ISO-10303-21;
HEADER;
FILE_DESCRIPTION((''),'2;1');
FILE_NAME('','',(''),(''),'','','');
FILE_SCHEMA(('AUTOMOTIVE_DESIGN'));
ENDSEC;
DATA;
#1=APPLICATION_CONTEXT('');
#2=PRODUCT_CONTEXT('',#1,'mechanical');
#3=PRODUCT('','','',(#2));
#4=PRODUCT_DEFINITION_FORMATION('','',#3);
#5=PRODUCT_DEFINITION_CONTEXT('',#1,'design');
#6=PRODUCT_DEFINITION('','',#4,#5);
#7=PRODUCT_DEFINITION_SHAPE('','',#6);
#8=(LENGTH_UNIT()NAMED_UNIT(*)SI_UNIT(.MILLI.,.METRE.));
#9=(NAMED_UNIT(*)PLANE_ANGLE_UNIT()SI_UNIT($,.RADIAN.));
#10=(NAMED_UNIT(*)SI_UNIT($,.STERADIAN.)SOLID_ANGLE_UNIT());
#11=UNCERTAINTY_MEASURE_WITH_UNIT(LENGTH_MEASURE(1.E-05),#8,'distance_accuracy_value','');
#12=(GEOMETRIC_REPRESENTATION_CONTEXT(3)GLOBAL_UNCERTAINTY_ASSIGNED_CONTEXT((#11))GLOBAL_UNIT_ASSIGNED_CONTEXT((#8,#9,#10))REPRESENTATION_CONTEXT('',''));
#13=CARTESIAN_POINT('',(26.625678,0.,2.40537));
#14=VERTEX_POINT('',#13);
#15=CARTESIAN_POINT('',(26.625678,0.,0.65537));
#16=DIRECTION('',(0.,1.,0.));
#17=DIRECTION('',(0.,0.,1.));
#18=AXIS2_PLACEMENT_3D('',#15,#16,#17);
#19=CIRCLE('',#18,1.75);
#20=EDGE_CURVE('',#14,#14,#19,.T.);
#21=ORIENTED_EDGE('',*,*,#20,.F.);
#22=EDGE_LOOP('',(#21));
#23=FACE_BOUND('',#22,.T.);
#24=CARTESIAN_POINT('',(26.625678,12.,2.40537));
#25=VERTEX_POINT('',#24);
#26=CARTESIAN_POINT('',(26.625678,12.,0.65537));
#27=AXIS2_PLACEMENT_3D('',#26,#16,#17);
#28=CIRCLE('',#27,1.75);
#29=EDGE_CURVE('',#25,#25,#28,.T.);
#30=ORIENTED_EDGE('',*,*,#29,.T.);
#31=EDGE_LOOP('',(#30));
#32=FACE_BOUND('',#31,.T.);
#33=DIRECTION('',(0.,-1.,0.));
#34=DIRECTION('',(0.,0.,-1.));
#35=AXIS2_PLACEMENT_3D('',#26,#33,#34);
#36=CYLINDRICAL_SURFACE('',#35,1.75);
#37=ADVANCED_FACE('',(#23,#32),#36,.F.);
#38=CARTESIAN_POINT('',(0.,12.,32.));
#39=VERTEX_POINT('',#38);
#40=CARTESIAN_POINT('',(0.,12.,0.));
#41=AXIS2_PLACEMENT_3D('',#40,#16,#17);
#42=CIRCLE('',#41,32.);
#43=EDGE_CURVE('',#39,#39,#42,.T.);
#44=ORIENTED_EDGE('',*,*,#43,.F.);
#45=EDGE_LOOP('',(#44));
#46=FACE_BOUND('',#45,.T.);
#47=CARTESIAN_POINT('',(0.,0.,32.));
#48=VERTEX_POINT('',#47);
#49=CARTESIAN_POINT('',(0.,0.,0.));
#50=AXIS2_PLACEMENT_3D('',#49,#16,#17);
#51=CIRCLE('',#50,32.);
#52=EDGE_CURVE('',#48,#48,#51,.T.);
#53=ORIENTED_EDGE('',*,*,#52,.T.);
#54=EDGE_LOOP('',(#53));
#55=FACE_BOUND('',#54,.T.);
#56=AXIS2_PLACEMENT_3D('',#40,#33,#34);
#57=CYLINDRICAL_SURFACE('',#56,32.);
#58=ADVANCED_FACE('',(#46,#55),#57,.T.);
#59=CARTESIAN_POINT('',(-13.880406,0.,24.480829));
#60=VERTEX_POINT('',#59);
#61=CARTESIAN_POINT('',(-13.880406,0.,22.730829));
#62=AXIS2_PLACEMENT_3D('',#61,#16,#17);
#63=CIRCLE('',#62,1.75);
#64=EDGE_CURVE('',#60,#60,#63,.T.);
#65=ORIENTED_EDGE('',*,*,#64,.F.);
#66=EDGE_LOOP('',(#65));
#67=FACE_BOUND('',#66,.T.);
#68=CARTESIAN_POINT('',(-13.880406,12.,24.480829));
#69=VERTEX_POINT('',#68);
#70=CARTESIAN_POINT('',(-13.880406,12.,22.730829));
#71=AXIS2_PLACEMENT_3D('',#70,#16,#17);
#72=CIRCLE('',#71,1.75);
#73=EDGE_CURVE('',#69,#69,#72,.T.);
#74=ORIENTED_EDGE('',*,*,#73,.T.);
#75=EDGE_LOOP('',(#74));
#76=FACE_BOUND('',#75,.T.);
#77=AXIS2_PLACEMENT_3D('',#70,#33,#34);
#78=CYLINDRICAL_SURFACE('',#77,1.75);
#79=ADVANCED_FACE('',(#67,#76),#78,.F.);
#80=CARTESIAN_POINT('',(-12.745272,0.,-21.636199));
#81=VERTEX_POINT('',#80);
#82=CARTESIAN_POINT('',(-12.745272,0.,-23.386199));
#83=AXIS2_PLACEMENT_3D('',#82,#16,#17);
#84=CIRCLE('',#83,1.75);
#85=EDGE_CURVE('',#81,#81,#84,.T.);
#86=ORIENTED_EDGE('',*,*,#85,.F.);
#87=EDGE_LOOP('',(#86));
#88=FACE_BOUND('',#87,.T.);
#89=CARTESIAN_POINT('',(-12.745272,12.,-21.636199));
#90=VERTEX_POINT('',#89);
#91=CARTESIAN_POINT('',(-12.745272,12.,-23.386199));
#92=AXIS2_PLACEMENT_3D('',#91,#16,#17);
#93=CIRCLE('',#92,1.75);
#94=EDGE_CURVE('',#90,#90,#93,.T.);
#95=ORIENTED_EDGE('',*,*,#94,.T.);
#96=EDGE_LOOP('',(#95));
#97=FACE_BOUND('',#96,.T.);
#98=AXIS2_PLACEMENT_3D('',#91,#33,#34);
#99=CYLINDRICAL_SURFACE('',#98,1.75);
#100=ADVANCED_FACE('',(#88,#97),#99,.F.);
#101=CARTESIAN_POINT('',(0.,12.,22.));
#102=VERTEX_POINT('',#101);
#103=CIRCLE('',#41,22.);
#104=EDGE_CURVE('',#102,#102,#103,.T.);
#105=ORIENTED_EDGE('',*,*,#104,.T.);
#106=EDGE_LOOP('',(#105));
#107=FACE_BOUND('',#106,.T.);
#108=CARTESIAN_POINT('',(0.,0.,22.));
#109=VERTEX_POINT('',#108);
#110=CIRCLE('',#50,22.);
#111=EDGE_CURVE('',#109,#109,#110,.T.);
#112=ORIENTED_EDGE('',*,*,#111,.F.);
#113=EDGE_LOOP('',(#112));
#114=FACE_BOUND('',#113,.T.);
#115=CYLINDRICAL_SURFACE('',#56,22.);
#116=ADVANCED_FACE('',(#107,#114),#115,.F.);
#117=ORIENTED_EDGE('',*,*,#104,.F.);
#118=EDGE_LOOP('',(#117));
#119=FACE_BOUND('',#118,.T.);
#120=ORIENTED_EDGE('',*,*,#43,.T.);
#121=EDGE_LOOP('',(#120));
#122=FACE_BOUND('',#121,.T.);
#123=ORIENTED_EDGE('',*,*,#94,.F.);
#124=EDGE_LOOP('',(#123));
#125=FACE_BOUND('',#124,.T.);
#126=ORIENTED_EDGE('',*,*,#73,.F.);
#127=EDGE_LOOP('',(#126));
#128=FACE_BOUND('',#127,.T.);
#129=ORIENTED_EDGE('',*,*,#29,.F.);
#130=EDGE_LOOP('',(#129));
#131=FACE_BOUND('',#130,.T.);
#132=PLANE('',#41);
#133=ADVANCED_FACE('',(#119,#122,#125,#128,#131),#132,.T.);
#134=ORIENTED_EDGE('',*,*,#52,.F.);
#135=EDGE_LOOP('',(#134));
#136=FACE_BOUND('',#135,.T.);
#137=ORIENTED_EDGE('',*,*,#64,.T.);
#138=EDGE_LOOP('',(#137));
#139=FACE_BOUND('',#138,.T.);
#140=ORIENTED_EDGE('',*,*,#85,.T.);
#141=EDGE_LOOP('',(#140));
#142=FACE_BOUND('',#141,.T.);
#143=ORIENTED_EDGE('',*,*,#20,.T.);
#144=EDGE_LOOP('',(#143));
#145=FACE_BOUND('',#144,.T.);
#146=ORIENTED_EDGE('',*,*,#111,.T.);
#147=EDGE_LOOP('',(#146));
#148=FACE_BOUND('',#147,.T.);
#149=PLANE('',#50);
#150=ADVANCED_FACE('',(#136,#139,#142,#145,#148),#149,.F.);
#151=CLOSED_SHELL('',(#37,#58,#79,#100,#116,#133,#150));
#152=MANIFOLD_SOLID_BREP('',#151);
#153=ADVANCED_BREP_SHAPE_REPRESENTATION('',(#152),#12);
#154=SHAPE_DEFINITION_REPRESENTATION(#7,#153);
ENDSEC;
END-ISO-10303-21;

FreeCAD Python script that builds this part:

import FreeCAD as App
import Part
import Sketcher
Q = App.Units.Quantity

doc = App.newDocument("Part")
body = doc.addObject("PartDesign::Body", "Body")

# Sketch on XZ plane
sketch1 = body.newObject("Sketcher::SketchObject", "Sketch")
sketch1.AttachmentSupport = (doc.getObject("XZ_Plane"), [""])
sketch1.MapMode = "FlatFace"
sketch1.addGeometry([
    Part.Circle(App.Vector(0, 0, 0), App.Vector(0, 0, 1), 32),  # 0
    Part.Circle(App.Vector(-12.7, -23.4, 0), App.Vector(0, 0, 1), 1.8),  # 1
    Part.Circle(App.Vector(-13.9, 22.7, 0), App.Vector(0, 0, 1), 1.8),  # 2
    Part.Circle(App.Vector(0, 0, 0), App.Vector(0, 0, 1), 22),  # 3
    Part.Circle(App.Vector(26.6, 0.7, 0), App.Vector(0, 0, 1), 1.8),  # 4
], False)
sketch1.addConstraint([
    Sketcher.Constraint("Coincident", 0, 3, -1, 1),
    Sketcher.Constraint("Coincident", 3, 3, -1, 1),
    Sketcher.Constraint("Equal", 1, 2),
    Sketcher.Constraint("Equal", 2, 4),
    Sketcher.Constraint("Diameter", 0, Q("64 mm")),
    Sketcher.Constraint("Diameter", 3, Q("44 mm")),
    Sketcher.Constraint("Diameter", 1, Q("3.5 mm")),
    Sketcher.Constraint("DistanceY", 1, 3, -1, 1, Q("23.386199 mm")),
    Sketcher.Constraint("DistanceY", -1, 1, 2, 3, Q("22.730829 mm")),
    Sketcher.Constraint("DistanceX", -1, 1, 4, 3, Q("26.625678 mm")),
    Sketcher.Constraint("DistanceY", -1, 1, 4, 3, Q("0.65537 mm")),
    Sketcher.Constraint("DistanceX", 1, 3, 4, 3, Q("39.37095 mm")),
    Sketcher.Constraint("DistanceX", 2, 3, -1, 1, Q("13.880406 mm")),
])
pad1 = body.newObject("PartDesign::Pad", "Pad")
pad1.Profile = sketch1
pad1.Length = 12
pad1.Reversed = True

doc.recompute()
